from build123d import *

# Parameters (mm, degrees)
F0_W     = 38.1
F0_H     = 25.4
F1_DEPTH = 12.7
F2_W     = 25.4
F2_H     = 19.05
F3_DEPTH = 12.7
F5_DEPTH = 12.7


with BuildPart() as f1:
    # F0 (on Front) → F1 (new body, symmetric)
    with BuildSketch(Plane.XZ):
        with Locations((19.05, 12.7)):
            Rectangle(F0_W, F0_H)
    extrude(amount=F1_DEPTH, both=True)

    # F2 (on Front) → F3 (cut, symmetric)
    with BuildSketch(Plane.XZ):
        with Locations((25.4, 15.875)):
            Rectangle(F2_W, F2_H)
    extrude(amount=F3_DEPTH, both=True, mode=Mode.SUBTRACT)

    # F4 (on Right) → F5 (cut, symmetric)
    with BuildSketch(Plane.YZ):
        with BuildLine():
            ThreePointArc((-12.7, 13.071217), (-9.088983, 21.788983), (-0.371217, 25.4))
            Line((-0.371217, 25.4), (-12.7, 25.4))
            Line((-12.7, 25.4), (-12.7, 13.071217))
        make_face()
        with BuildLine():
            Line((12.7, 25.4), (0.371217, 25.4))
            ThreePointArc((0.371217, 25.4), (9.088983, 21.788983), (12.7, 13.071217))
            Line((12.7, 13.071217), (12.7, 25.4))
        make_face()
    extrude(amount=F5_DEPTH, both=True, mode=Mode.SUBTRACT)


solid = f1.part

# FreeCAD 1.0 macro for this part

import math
import FreeCAD as App
import Part
import Sketcher
from FreeCAD import Vector
Q = App.Units.Quantity


def add_polygon(sketch, points):
    """Adds a closed chain of lines whose ends are joined by coincident constraints."""
    first, n = sketch.GeometryCount, len(points)
    for a, b in zip(points, points[1:] + points[:1]):
        sketch.addGeometry(Part.LineSegment(App.Vector(*a, 0), App.Vector(*b, 0)), False)
    for i in range(n):
        sketch.addConstraint(Sketcher.Constraint("Coincident", first + i, 2, first + (i + 1) % n, 1))

doc = App.newDocument("Part")
body = doc.addObject("PartDesign::Body", "Body")

sketch1 = doc.addObject("Sketcher::SketchObject", "Sketch")
body.addObject(sketch1)
sketch1.AttachmentSupport = (doc.XZ_Plane, [""])
sketch1.MapMode = "FlatFace"
add_polygon(sketch1, [(0, 25.4), (0, 0), (38.1, 0), (38.1, 25.4)])
sketch1.addConstraint(Sketcher.Constraint("Vertical", 0))
sketch1.addConstraint(Sketcher.Constraint("Horizontal", 1))
sketch1.addConstraint(Sketcher.Constraint("Vertical", 2))
sketch1.addConstraint(Sketcher.Constraint("Horizontal", 3))
sketch1.addConstraint(Sketcher.Constraint("Coincident", 0, 2, -1, 1))
sketch1.addConstraint(Sketcher.Constraint("DistanceY", 0, 2, 0, 1, Q("1 in")))
sketch1.addConstraint(Sketcher.Constraint("DistanceX", 1, 1, 1, 2, Q("1.5 in")))
pad1 = doc.addObject("PartDesign::Pad", "Pad")
body.addObject(pad1)
pad1.Profile = sketch1
pad1.Length = Q("1 in")
pad1.Midplane = True

sketch2 = doc.addObject("Sketcher::SketchObject", "Sketch001")
body.addObject(sketch2)
sketch2.AttachmentSupport = (doc.XZ_Plane, [""])
sketch2.MapMode = "FlatFace"
add_polygon(sketch2, [(12.7, 25.4), (12.7, 6.35), (38.1, 6.35), (38.1, 25.4)])
sketch2.addConstraint(Sketcher.Constraint("Vertical", 0))
sketch2.addConstraint(Sketcher.Constraint("Horizontal", 1))
sketch2.addConstraint(Sketcher.Constraint("Vertical", 2))
sketch2.addConstraint(Sketcher.Constraint("Horizontal", 3))
sketch2.addConstraint(Sketcher.Constraint("DistanceX", 1, 1, 1, 2, Q("1 in")))
sketch2.addConstraint(Sketcher.Constraint("DistanceY", -1, 1, 2, 2, Q("1 in")))
sketch2.addConstraint(Sketcher.Constraint("DistanceY", 0, 2, 0, 1, Q("0.75 in")))
sketch2.addConstraint(Sketcher.Constraint("DistanceX", -1, 1, 0, 2, Q("0.5 in")))
pocket1 = doc.addObject("PartDesign::Pocket", "Pocket")
body.addObject(pocket1)
pocket1.Profile = sketch2
pocket1.Length = Q("1 in")
pocket1.Midplane = True

sketch3 = doc.addObject("Sketcher::SketchObject", "Sketch002")
body.addObject(sketch3)
sketch3.AttachmentSupport = (doc.YZ_Plane, [""])
sketch3.MapMode = "FlatFace"
sketch3.addGeometry(Part.ArcOfCircle(Part.Circle(Vector(-0.371217, 13.071217, 0), Vector(0, 0, 1), 12.328783), math.radians(90.000001), math.radians(179.999999)), False)
sketch3.addGeometry(Part.LineSegment(Vector(-0.371217, 25.4, 0), Vector(-12.7, 25.4, 0)), False)
sketch3.addGeometry(Part.LineSegment(Vector(-12.7, 25.4, 0), Vector(-12.7, 13.071217, 0)), False)
sketch3.addGeometry(Part.LineSegment(Vector(12.7, 25.4, 0), Vector(0.371217, 25.4, 0)), False)
sketch3.addGeometry(Part.ArcOfCircle(Part.Circle(Vector(0.371217, 13.071217, 0), Vector(0, 0, 1), 12.328783), math.radians(0.000001), math.radians(89.999999)), False)
sketch3.addGeometry(Part.LineSegment(Vector(12.7, 13.071217, 0), Vector(12.7, 25.4, 0)), False)
sketch3.addConstraint(Sketcher.Constraint("Tangent", 0, 1, 1, 1))
sketch3.addConstraint(Sketcher.Constraint("Coincident", 1, 2, 2, 1))
sketch3.addConstraint(Sketcher.Constraint("Tangent", 2, 2, 0, 2))
sketch3.addConstraint(Sketcher.Constraint("Tangent", 3, 2, 4, 2))
sketch3.addConstraint(Sketcher.Constraint("Tangent", 4, 1, 5, 1))
sketch3.addConstraint(Sketcher.Constraint("Coincident", 5, 2, 3, 1))
sketch3.addConstraint(Sketcher.Constraint("Horizontal", 1))
sketch3.addConstraint(Sketcher.Constraint("Vertical", 2))
sketch3.addConstraint(Sketcher.Constraint("Horizontal", 3))
sketch3.addConstraint(Sketcher.Constraint("Vertical", 5))
sketch3.addConstraint(Sketcher.Constraint("Equal", 0, 4))
sketch3.addConstraint(Sketcher.Constraint("Symmetric", 0, 3, 4, 3, -2))
sketch3.addConstraint(Sketcher.Constraint("DistanceY", -1, 1, 0, 1, Q("1 in")))
sketch3.addConstraint(Sketcher.Constraint("DistanceX", 2, 2, 4, 1, Q("1 in")))
sketch3.addConstraint(Sketcher.Constraint("Radius", 0, 12.328783))
pocket2 = doc.addObject("PartDesign::Pocket", "Pocket001")
body.addObject(pocket2)
pocket2.Profile = sketch3
pocket2.Length = Q("1 in")
pocket2.Midplane = True

doc.recompute()
